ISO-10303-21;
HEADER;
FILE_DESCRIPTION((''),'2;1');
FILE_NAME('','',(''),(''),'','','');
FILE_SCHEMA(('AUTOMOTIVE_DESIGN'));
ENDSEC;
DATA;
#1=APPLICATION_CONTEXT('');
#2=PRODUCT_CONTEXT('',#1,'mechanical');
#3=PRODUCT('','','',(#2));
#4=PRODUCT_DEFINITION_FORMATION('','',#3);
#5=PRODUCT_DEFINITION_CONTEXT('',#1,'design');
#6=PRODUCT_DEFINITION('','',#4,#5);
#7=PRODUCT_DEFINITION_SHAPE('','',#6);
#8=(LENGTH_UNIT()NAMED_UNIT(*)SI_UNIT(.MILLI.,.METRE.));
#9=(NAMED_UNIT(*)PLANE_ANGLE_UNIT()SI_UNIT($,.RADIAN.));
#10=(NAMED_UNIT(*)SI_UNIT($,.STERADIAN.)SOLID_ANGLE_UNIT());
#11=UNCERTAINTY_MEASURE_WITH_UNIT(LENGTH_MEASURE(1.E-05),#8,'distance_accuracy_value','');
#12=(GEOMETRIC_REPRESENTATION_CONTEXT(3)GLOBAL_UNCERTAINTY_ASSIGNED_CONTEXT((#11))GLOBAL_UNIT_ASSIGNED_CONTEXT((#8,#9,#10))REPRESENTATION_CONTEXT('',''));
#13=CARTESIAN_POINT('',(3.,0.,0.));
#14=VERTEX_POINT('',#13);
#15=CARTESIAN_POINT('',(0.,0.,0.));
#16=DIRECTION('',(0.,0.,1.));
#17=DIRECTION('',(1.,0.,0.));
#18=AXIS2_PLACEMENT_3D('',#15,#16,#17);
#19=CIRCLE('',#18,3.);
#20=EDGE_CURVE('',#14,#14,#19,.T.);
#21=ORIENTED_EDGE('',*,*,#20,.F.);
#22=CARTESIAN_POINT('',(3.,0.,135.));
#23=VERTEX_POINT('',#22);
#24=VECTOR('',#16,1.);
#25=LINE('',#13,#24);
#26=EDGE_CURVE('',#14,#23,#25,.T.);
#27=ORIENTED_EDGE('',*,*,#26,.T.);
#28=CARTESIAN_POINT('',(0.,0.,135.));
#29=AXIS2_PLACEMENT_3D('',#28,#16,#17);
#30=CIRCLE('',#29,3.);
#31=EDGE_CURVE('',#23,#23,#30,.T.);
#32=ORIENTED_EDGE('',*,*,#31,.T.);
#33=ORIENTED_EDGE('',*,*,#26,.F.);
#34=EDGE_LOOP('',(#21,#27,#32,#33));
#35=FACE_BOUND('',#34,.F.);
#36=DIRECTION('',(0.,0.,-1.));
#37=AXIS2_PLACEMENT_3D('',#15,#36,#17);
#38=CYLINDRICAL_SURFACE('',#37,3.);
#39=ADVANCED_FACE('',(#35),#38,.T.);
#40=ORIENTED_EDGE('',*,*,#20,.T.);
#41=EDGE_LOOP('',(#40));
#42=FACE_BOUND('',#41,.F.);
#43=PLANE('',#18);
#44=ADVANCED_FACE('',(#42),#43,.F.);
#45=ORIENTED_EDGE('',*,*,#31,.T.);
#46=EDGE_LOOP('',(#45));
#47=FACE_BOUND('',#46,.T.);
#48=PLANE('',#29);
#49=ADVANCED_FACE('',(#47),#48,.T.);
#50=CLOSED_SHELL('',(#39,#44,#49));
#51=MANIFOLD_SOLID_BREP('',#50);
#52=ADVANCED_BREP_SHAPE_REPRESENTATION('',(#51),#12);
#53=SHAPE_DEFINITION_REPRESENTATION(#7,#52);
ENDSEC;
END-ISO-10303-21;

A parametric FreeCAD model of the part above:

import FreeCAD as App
import Part
import Sketcher
from FreeCAD import Vector

doc = App.newDocument("Part")
params = doc.addObject("Spreadsheet::Sheet", "Params")
for row, (alias, value) in enumerate([
    ("sketch1_diameter", "6 mm"),
    ("pad1_length", "135 mm"),
], start=1):
    params.set(f"A{row}", alias)
    params.set(f"B{row}", "=" + value)
    params.setAlias(f"B{row}", alias)

body = doc.addObject("PartDesign::Body", "Body")

# Sketch on XY plane
sketch1 = body.newObject("Sketcher::SketchObject", "Sketch")
sketch1.AttachmentSupport = (doc.getObject("XY_Plane"), [""])
sketch1.MapMode = "FlatFace"
sketch1.addGeometry(Part.Circle(Vector(0, 0, 0), Vector(0, 0, 1), 3), False)
sketch1.addConstraint(Sketcher.Constraint("Coincident", 0, 3, -1, 1))
sketch1.addConstraint(Sketcher.Constraint("Diameter", 0, 6.0))
sketch1.setExpression("Constraints[1]", "Params.sketch1_diameter")
pad1 = body.newObject("PartDesign::Pad", "Pad")
pad1.Profile = sketch1
pad1.setExpression("Length", "Params.pad1_length")

doc.recompute()
